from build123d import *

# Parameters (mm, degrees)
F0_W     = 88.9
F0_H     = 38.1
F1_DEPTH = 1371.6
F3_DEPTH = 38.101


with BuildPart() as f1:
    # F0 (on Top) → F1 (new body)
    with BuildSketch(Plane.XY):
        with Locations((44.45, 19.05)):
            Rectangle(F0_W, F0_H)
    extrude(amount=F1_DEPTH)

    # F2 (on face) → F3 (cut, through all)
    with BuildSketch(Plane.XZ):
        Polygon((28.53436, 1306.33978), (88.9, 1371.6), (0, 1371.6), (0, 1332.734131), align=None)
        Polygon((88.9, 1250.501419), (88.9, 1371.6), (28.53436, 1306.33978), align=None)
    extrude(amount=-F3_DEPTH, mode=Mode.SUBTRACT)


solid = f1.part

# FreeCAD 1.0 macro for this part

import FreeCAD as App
import Part
import Sketcher
from FreeCAD import Vector
Q = App.Units.Quantity

doc = App.newDocument("Part")
body = doc.addObject("PartDesign::Body", "Body")

sketch1 = body.newObject("Sketcher::SketchObject", "Sketch")
sketch1.AttachmentSupport = (doc.getObject("XY_Plane"), [""])
sketch1.MapMode = "FlatFace"
sketch1.addGeometry(Part.LineSegment(Vector(0, 38.1, 0), Vector(0, 0, 0)), False)
sketch1.addGeometry(Part.LineSegment(Vector(0, 0, 0), Vector(88.9, 0, 0)), False)
sketch1.addGeometry(Part.LineSegment(Vector(88.9, 0, 0), Vector(88.9, 38.1, 0)), False)
sketch1.addGeometry(Part.LineSegment(Vector(88.9, 38.1, 0), Vector(0, 38.1, 0)), False)
sketch1.addConstraint(Sketcher.Constraint("Coincident", 0, 2, 1, 1))
sketch1.addConstraint(Sketcher.Constraint("Coincident", 1, 2, 2, 1))
sketch1.addConstraint(Sketcher.Constraint("Coincident", 2, 2, 3, 1))
sketch1.addConstraint(Sketcher.Constraint("Coincident", 3, 2, 0, 1))
sketch1.addConstraint(Sketcher.Constraint("Vertical", 0))
sketch1.addConstraint(Sketcher.Constraint("Horizontal", 1))
sketch1.addConstraint(Sketcher.Constraint("Vertical", 2))
sketch1.addConstraint(Sketcher.Constraint("Horizontal", 3))
sketch1.addConstraint(Sketcher.Constraint("Coincident", 0, 2, -1, 1))
sketch1.addConstraint(Sketcher.Constraint("DistanceX", 1, 1, 1, 2, Q("3.5 in")))
sketch1.addConstraint(Sketcher.Constraint("DistanceY", 0, 2, 0, 1, Q("1.5 in")))
pad1 = body.newObject("PartDesign::Pad", "Pad")
pad1.Profile = sketch1
pad1.Length = Q("54 in")

sketch2 = body.newObject("Sketcher::SketchObject", "Sketch001")
sketch2.AttachmentSupport = (doc.getObject("XZ_Plane"), [""])
sketch2.MapMode = "FlatFace"
sketch2.addGeometry(Part.LineSegment(Vector(88.9, 1371.6, 0), Vector(0, 1371.6, 0)), False)
sketch2.addGeometry(Part.LineSegment(Vector(0, 1371.6, 0), Vector(0, 1332.734131, 0)), False)
sketch2.addGeometry(Part.LineSegment(Vector(0, 1332.734131, 0), Vector(28.53436, 1306.33978, 0)), False)
sketch2.addGeometry(Part.LineSegment(Vector(28.53436, 1306.33978, 0), Vector(88.9, 1250.501419, 0)), False)
sketch2.addGeometry(Part.LineSegment(Vector(88.9, 1250.501419, 0), Vector(88.9, 1371.6, 0)), False)
sketch2.addConstraint(Sketcher.Constraint("Coincident", 0, 2, 1, 1))
sketch2.addConstraint(Sketcher.Constraint("Coincident", 1, 2, 2, 1))
sketch2.addConstraint(Sketcher.Constraint("Coincident", 2, 2, 3, 1))
sketch2.addConstraint(Sketcher.Constraint("Coincident", 3, 2, 4, 1))
sketch2.addConstraint(Sketcher.Constraint("Coincident", 4, 2, 0, 1))
sketch2.addConstraint(Sketcher.Constraint("Horizontal", 0))
sketch2.addConstraint(Sketcher.Constraint("Vertical", 1))
sketch2.addConstraint(Sketcher.Constraint("Vertical", 4))
sketch2.addConstraint(Sketcher.Constraint("PointOnObject", 0, 2, -2))
sketch2.addConstraint(Sketcher.Constraint("Parallel", 2, 3))
sketch2.addConstraint(Sketcher.Constraint("DistanceX", 0, 2, 0, 1, Q("3.5 in")))
sketch2.addConstraint(Sketcher.Constraint("DistanceY", -1, 1, 0, 2, Q("54 in")))
sketch2.addConstraint(Sketcher.Constraint("DistanceX", -1, 1, 2, 2, Q("1.1234 in")))
sketch2.addConstraint(Sketcher.Constraint("DistanceY", -1, 1, 2, 2, Q("51.4307 in")))
sketch2.addConstraint(Sketcher.Constraint("DistanceY", 1, 2, 1, 1, Q("38.865869 mm")))
pocket1 = body.newObject("PartDesign::Pocket", "Pocket")
pocket1.Profile = sketch2
pocket1.Type = "ThroughAll"

doc.recompute()
